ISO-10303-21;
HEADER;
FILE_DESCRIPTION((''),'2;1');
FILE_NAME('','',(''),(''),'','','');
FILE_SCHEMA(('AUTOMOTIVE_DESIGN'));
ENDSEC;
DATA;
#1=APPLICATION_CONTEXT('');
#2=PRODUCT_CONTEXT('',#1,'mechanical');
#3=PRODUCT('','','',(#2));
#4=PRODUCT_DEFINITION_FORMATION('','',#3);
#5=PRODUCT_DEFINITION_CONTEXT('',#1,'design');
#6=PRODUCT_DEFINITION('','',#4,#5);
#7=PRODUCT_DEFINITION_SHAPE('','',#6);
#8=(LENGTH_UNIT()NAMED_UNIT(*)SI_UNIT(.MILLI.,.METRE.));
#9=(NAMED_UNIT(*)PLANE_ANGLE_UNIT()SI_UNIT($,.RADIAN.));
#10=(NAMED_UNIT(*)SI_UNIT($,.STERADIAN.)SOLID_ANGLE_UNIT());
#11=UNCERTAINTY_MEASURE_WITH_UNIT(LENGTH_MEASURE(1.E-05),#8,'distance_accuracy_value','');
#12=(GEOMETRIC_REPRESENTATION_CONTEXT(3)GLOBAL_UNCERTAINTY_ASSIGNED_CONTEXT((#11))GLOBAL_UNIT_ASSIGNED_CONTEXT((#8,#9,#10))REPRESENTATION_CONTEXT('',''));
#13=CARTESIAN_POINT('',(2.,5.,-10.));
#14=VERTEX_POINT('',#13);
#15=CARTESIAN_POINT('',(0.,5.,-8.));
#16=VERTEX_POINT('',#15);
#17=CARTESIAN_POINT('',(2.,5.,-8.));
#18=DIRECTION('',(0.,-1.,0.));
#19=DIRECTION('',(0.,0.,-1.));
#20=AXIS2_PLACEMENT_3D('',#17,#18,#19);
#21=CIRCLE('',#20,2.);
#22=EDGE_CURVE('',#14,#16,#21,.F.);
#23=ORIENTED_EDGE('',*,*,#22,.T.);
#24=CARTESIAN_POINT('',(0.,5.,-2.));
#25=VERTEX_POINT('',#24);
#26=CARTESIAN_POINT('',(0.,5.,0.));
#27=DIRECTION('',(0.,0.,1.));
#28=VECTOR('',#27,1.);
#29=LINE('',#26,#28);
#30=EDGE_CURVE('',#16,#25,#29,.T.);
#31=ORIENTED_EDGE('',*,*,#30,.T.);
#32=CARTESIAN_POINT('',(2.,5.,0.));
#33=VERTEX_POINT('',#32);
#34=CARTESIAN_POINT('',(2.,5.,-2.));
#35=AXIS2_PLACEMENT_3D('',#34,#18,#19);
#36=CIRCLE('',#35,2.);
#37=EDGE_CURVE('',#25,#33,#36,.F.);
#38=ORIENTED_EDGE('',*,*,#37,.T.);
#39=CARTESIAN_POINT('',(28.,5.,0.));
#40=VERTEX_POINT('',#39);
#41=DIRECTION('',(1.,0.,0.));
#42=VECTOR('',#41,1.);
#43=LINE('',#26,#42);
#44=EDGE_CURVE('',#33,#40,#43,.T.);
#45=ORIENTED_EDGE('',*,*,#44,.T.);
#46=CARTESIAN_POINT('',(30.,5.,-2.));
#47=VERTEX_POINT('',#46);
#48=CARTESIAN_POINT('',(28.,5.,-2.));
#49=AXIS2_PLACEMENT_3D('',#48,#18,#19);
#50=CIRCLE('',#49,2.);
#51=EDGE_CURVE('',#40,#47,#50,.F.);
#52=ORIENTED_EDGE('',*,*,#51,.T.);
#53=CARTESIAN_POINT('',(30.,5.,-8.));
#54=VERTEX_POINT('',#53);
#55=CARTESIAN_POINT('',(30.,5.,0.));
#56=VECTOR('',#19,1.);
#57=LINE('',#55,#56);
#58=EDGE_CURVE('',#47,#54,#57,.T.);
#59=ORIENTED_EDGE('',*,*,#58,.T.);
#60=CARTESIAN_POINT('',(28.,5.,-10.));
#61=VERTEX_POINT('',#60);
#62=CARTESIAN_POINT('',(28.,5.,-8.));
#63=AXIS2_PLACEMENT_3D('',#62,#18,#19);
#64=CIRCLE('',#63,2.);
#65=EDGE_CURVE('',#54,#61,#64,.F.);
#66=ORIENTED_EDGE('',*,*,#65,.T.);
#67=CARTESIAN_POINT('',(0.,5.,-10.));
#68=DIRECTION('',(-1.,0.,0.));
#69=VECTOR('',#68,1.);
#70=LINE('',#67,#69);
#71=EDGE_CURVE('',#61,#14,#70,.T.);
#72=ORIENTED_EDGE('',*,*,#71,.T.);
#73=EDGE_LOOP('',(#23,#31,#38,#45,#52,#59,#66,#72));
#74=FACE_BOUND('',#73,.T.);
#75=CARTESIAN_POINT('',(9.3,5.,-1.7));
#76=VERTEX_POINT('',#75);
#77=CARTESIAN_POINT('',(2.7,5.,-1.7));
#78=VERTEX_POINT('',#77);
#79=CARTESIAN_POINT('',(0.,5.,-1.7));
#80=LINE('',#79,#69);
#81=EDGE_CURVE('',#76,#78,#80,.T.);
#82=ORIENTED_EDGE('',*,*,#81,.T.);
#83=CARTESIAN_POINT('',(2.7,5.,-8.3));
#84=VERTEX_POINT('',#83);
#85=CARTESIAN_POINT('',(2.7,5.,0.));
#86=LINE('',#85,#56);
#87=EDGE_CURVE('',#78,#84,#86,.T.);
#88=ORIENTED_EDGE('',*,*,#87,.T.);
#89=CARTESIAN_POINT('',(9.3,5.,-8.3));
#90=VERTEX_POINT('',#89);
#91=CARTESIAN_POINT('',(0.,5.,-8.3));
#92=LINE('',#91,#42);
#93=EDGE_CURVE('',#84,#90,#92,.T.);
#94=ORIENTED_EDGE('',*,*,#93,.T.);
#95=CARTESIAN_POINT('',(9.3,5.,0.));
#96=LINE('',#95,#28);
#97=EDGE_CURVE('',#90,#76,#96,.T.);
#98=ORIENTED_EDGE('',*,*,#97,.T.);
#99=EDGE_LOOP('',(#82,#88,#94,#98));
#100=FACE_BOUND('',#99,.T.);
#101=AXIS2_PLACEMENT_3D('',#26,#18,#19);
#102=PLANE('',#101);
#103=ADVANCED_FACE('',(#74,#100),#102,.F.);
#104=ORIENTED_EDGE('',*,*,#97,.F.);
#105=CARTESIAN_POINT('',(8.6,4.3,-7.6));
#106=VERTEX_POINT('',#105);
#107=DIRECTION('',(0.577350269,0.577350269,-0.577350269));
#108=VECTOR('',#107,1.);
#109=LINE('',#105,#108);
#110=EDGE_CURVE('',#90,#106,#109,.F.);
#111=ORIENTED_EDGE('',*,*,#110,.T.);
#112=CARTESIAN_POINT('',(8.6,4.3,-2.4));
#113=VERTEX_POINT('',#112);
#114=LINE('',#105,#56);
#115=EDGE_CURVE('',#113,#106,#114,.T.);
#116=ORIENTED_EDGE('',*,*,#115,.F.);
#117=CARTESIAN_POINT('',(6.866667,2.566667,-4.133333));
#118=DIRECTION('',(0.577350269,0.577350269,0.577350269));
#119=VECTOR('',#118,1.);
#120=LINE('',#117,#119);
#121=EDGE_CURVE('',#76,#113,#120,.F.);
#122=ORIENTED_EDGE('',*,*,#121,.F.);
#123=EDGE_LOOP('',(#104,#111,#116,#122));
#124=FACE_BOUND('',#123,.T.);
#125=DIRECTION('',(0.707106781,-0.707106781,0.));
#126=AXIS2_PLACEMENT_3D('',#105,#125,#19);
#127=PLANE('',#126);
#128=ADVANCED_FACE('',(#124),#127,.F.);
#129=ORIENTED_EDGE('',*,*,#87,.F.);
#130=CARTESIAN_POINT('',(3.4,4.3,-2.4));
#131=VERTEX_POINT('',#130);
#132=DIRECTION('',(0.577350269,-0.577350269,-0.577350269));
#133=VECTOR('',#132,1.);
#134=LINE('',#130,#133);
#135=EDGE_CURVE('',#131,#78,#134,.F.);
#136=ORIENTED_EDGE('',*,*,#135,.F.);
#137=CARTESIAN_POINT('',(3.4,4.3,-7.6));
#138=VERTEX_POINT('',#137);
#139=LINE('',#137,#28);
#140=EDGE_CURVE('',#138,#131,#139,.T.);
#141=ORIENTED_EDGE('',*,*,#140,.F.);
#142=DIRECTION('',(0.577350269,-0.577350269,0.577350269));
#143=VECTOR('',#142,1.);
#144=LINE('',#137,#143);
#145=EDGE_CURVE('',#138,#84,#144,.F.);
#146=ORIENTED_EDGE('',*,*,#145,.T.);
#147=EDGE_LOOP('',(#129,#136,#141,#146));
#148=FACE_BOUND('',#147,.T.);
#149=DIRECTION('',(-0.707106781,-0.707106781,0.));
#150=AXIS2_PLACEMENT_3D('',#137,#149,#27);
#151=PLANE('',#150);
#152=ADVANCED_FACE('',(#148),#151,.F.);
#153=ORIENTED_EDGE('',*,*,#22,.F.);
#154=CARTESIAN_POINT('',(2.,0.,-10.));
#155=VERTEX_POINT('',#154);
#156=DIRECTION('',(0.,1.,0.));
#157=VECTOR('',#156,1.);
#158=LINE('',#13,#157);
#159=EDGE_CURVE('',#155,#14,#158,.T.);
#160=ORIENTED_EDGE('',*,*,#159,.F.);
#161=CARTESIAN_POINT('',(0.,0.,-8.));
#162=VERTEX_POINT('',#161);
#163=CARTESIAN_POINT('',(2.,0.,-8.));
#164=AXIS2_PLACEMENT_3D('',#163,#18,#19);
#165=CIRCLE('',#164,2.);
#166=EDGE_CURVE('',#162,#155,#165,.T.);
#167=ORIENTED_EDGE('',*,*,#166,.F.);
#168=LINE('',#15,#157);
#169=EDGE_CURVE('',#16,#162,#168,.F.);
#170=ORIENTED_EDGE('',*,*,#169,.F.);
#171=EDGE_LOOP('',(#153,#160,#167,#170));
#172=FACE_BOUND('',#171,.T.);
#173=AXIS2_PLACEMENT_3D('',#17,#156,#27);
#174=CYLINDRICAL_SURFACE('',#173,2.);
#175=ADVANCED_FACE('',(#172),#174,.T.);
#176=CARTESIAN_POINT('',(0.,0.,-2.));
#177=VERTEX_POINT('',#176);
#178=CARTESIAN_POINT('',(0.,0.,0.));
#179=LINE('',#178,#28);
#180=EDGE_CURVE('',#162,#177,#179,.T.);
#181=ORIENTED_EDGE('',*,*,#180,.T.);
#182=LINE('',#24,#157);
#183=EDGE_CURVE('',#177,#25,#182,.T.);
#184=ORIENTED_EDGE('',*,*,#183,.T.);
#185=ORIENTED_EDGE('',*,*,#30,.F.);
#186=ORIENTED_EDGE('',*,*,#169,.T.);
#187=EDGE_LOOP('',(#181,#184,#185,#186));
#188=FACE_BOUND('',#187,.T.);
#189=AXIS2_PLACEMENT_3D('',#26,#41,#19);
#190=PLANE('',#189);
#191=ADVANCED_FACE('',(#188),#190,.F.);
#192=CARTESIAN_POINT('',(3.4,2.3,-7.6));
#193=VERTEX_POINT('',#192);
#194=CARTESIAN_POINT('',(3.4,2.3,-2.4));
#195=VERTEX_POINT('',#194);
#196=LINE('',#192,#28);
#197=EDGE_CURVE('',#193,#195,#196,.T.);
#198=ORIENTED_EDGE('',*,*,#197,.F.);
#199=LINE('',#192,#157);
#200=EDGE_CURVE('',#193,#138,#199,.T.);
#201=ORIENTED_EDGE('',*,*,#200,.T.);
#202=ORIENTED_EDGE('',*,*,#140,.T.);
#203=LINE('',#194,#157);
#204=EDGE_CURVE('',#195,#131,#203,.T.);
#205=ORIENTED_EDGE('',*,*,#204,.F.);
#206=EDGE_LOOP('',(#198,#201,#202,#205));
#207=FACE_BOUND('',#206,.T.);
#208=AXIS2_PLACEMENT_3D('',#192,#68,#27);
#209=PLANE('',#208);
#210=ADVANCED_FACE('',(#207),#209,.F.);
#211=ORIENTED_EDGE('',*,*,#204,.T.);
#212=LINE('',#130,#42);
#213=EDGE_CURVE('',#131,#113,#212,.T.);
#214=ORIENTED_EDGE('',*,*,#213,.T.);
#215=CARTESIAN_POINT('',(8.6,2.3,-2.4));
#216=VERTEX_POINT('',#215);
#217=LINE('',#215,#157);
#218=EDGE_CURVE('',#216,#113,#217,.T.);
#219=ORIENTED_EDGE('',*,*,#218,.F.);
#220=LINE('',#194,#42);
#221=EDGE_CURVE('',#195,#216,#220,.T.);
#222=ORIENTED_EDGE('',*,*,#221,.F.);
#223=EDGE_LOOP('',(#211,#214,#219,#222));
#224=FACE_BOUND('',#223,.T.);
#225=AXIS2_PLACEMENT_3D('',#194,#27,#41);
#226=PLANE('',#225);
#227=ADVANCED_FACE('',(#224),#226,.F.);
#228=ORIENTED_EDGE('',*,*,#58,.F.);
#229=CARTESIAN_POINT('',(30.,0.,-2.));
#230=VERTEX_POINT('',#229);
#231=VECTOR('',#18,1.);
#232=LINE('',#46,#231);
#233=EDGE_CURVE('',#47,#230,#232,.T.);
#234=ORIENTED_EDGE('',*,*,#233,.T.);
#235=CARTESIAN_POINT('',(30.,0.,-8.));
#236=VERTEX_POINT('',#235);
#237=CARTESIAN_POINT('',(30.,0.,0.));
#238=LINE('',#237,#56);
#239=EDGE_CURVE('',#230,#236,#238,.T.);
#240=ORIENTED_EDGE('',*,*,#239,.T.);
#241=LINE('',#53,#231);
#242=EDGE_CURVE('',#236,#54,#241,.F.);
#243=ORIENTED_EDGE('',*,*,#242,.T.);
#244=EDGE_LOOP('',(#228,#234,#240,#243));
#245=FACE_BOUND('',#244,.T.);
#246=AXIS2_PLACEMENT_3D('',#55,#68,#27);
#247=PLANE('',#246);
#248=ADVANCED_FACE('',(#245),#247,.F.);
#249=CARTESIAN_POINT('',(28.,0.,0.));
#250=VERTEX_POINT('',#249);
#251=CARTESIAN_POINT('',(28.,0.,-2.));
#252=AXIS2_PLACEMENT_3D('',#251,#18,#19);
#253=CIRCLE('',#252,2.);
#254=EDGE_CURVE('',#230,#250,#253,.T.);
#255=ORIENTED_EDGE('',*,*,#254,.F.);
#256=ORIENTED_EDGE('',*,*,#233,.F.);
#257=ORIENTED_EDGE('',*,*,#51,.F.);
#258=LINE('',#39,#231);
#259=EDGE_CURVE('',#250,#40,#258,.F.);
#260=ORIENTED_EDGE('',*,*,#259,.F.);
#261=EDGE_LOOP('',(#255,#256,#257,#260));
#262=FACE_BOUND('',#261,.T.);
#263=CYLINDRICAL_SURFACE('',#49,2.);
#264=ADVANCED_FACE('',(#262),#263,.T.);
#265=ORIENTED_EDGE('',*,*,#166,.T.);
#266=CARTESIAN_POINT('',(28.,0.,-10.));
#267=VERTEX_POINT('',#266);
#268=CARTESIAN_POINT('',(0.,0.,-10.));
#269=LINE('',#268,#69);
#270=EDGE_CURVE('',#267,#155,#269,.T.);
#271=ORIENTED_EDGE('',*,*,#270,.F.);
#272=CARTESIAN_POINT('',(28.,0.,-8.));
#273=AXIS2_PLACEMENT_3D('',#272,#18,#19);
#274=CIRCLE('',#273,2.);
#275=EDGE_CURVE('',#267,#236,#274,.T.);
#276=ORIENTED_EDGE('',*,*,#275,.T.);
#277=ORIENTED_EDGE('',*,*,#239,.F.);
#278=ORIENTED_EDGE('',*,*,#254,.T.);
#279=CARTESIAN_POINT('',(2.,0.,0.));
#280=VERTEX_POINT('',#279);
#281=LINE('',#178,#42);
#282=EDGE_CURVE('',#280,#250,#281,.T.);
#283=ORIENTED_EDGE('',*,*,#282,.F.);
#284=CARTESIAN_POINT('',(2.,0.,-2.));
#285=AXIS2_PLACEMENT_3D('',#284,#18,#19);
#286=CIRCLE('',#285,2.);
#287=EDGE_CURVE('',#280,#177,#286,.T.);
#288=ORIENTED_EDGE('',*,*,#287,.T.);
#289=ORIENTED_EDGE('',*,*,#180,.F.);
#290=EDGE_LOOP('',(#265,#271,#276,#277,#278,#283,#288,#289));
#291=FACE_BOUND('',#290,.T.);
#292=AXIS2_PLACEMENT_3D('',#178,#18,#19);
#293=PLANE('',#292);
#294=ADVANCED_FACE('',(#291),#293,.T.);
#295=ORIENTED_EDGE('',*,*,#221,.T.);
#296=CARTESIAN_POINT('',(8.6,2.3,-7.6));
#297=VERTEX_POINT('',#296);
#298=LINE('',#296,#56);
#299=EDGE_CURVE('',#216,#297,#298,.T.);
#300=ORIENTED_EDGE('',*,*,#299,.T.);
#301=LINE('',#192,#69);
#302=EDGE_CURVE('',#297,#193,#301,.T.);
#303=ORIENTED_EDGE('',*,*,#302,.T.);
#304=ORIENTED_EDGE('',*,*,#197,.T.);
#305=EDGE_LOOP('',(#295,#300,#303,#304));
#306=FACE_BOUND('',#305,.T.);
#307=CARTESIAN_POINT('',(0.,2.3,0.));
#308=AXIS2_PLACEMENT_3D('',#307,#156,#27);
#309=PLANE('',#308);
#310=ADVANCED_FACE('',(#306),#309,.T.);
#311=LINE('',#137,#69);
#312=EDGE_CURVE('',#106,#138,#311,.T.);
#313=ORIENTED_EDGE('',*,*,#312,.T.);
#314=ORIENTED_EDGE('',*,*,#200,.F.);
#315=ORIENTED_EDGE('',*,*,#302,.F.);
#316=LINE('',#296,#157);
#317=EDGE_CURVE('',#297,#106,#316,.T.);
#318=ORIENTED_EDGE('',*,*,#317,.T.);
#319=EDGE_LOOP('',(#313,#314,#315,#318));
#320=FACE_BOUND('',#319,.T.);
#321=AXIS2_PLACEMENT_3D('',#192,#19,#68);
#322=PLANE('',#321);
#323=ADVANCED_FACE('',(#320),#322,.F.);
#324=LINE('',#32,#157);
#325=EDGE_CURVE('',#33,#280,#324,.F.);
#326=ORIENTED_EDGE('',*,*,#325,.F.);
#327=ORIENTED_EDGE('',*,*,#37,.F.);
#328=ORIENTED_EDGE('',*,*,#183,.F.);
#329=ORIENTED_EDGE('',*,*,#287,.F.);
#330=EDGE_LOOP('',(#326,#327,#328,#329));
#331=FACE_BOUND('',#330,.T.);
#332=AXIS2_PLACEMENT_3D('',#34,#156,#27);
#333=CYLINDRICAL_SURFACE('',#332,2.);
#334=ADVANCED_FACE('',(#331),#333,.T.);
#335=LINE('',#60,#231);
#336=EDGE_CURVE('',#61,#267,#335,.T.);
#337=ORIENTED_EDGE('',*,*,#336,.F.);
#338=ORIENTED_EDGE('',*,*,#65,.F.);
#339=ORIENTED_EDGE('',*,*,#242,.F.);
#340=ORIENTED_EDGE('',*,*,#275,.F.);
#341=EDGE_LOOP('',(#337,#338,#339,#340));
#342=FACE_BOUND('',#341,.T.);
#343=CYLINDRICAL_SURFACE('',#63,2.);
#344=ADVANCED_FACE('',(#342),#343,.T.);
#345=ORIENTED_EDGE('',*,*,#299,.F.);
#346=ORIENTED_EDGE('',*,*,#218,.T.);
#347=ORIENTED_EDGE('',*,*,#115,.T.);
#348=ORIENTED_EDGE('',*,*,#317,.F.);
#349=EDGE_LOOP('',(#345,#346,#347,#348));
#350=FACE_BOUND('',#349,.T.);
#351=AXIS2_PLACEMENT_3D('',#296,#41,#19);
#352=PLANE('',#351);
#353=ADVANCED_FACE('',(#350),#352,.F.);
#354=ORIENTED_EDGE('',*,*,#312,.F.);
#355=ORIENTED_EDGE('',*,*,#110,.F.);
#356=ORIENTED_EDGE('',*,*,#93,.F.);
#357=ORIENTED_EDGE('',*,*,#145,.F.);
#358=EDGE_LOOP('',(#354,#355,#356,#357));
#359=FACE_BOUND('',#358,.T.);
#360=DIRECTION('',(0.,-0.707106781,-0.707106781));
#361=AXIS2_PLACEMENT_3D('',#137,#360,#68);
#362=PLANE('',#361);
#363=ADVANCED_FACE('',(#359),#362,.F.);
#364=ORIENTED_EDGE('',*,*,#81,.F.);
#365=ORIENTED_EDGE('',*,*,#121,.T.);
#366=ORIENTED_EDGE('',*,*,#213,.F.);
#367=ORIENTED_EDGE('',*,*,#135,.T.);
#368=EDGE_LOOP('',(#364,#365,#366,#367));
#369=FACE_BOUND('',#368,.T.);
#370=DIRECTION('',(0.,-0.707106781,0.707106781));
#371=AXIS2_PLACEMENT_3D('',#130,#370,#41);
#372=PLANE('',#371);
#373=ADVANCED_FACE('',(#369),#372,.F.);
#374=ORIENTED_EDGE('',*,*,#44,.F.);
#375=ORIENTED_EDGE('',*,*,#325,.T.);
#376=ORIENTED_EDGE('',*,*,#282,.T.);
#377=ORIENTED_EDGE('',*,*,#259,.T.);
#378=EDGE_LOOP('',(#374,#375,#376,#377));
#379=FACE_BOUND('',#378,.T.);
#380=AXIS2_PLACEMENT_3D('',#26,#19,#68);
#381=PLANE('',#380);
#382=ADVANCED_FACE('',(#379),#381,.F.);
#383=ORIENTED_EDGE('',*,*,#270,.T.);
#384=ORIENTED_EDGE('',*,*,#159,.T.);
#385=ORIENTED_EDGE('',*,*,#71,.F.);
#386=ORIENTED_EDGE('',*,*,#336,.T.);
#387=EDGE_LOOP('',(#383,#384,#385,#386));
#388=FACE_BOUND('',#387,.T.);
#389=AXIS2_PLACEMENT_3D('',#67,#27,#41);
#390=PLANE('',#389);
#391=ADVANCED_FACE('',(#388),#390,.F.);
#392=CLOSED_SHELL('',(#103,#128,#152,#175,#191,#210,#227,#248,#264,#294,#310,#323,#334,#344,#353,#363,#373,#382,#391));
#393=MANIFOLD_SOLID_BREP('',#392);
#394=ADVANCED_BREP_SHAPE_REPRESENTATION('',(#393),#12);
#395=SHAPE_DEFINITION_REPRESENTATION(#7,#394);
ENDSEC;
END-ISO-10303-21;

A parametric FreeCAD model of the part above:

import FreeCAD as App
import Part
import Sketcher


def edges_at(feature, points):
    """Names of the edges that pass closest to the given points."""
    edges = feature.Shape.Edges
    near = lambda p: min(range(len(edges)), key=lambda i: edges[i].distToShape(Part.Vertex(*p))[0])
    return sorted({f"Edge{near(p) + 1}" for p in points})

doc = App.newDocument("Part")
body = doc.addObject("PartDesign::Body", "Body")

# Sketch on XZ plane
sketch1 = body.newObject("Sketcher::SketchObject", "Sketch")
sketch1.AttachmentSupport = (doc.getObject("XZ_Plane"), [""])
sketch1.MapMode = "FlatFace"
sketch1.addGeometry([
    Part.LineSegment(App.Vector(0, -10, 0), App.Vector(0, 0, 0)),
    Part.LineSegment(App.Vector(0, 0, 0), App.Vector(30, 0, 0)),
    Part.LineSegment(App.Vector(30, 0, 0), App.Vector(30, -10, 0)),
    Part.LineSegment(App.Vector(30, -10, 0), App.Vector(0, -10, 0)),
], False)
sketch1.addConstraint([
    Sketcher.Constraint("Coincident", 0, 2, 1, 1),
    Sketcher.Constraint("Coincident", 1, 2, 2, 1),
    Sketcher.Constraint("Coincident", 2, 2, 3, 1),
    Sketcher.Constraint("Coincident", 3, 2, 0, 1),
    Sketcher.Constraint("Vertical", 0),
    Sketcher.Constraint("Horizontal", 1),
    Sketcher.Constraint("Vertical", 2),
    Sketcher.Constraint("Horizontal", 3),
    Sketcher.Constraint("Coincident", 0, 2, -1, 1),
    Sketcher.Constraint("DistanceX", 1, 1, 1, 2, 30.0),
    Sketcher.Constraint("DistanceY", 0, 1, 0, 2, 10.0),
])
pad1 = body.newObject("PartDesign::Pad", "Pad")
pad1.Profile = sketch1
pad1.Length = 5
pad1.Reversed = True

# Sketch on XZ plane
sketch2 = body.newObject("Sketcher::SketchObject", "Sketch001")
sketch2.AttachmentSupport = (doc.getObject("XZ_Plane"), [""])
sketch2.MapMode = "FlatFace"
sketch2.AttachmentOffset = App.Placement(App.Vector(0, 0, -5), App.Rotation())
sketch2.addGeometry([
    Part.LineSegment(App.Vector(3, -8, 0), App.Vector(3, -2, 0)),
    Part.LineSegment(App.Vector(3, -2, 0), App.Vector(9, -2, 0)),
    Part.LineSegment(App.Vector(9, -2, 0), App.Vector(9, -8, 0)),
    Part.LineSegment(App.Vector(9, -8, 0), App.Vector(3, -8, 0)),
], False)
sketch2.addConstraint([
    Sketcher.Constraint("Coincident", 0, 2, 1, 1),
    Sketcher.Constraint("Coincident", 1, 2, 2, 1),
    Sketcher.Constraint("Coincident", 2, 2, 3, 1),
    Sketcher.Constraint("Coincident", 3, 2, 0, 1),
    Sketcher.Constraint("Vertical", 0),
    Sketcher.Constraint("Horizontal", 1),
    Sketcher.Constraint("Vertical", 2),
    Sketcher.Constraint("Horizontal", 3),
    Sketcher.Constraint("Equal", 3, 0),
    Sketcher.Constraint("DistanceX", 1, 1, 1, 2, 5.2),
    Sketcher.Constraint("DistanceX", -1, 1, 0, 2, 3.4),
    Sketcher.Constraint("DistanceY", 0, 2, -1, 1, 2.4),
])
pocket1 = body.newObject("PartDesign::Pocket", "Pocket")
pocket1.Profile = sketch2
pocket1.Length = 2.7
pocket1.Reversed = True
doc.recompute()

chamfer = body.newObject("PartDesign::Chamfer", "Chamfer")
chamfer.Base = (pocket1, edges_at(pocket1, [
    (8.6, 5, -5),
    (6, 5, -7.6),
    (3.4, 5, -5),
    (6, 5, -2.4),
]))
chamfer.Size = 0.7
doc.recompute()

fillet = body.newObject("PartDesign::Fillet", "Fillet")
fillet.Base = (chamfer, edges_at(chamfer, [(30, 2.5, 0)]))
fillet.Radius = 2
doc.recompute()

fillet2 = body.newObject("PartDesign::Fillet", "Fillet001")
fillet2.Base = (fillet, edges_at(fillet, [(30, 2.5, -10)]))
fillet2.Radius = 2
doc.recompute()

fillet3 = body.newObject("PartDesign::Fillet", "Fillet002")
fillet3.Base = (fillet2, edges_at(fillet2, [(0, 2.5, 0)]))
fillet3.Radius = 2
doc.recompute()

fillet4 = body.newObject("PartDesign::Fillet", "Fillet003")
fillet4.Base = (fillet3, edges_at(fillet3, [(0, 2.5, -10)]))
fillet4.Radius = 2

doc.recompute()
